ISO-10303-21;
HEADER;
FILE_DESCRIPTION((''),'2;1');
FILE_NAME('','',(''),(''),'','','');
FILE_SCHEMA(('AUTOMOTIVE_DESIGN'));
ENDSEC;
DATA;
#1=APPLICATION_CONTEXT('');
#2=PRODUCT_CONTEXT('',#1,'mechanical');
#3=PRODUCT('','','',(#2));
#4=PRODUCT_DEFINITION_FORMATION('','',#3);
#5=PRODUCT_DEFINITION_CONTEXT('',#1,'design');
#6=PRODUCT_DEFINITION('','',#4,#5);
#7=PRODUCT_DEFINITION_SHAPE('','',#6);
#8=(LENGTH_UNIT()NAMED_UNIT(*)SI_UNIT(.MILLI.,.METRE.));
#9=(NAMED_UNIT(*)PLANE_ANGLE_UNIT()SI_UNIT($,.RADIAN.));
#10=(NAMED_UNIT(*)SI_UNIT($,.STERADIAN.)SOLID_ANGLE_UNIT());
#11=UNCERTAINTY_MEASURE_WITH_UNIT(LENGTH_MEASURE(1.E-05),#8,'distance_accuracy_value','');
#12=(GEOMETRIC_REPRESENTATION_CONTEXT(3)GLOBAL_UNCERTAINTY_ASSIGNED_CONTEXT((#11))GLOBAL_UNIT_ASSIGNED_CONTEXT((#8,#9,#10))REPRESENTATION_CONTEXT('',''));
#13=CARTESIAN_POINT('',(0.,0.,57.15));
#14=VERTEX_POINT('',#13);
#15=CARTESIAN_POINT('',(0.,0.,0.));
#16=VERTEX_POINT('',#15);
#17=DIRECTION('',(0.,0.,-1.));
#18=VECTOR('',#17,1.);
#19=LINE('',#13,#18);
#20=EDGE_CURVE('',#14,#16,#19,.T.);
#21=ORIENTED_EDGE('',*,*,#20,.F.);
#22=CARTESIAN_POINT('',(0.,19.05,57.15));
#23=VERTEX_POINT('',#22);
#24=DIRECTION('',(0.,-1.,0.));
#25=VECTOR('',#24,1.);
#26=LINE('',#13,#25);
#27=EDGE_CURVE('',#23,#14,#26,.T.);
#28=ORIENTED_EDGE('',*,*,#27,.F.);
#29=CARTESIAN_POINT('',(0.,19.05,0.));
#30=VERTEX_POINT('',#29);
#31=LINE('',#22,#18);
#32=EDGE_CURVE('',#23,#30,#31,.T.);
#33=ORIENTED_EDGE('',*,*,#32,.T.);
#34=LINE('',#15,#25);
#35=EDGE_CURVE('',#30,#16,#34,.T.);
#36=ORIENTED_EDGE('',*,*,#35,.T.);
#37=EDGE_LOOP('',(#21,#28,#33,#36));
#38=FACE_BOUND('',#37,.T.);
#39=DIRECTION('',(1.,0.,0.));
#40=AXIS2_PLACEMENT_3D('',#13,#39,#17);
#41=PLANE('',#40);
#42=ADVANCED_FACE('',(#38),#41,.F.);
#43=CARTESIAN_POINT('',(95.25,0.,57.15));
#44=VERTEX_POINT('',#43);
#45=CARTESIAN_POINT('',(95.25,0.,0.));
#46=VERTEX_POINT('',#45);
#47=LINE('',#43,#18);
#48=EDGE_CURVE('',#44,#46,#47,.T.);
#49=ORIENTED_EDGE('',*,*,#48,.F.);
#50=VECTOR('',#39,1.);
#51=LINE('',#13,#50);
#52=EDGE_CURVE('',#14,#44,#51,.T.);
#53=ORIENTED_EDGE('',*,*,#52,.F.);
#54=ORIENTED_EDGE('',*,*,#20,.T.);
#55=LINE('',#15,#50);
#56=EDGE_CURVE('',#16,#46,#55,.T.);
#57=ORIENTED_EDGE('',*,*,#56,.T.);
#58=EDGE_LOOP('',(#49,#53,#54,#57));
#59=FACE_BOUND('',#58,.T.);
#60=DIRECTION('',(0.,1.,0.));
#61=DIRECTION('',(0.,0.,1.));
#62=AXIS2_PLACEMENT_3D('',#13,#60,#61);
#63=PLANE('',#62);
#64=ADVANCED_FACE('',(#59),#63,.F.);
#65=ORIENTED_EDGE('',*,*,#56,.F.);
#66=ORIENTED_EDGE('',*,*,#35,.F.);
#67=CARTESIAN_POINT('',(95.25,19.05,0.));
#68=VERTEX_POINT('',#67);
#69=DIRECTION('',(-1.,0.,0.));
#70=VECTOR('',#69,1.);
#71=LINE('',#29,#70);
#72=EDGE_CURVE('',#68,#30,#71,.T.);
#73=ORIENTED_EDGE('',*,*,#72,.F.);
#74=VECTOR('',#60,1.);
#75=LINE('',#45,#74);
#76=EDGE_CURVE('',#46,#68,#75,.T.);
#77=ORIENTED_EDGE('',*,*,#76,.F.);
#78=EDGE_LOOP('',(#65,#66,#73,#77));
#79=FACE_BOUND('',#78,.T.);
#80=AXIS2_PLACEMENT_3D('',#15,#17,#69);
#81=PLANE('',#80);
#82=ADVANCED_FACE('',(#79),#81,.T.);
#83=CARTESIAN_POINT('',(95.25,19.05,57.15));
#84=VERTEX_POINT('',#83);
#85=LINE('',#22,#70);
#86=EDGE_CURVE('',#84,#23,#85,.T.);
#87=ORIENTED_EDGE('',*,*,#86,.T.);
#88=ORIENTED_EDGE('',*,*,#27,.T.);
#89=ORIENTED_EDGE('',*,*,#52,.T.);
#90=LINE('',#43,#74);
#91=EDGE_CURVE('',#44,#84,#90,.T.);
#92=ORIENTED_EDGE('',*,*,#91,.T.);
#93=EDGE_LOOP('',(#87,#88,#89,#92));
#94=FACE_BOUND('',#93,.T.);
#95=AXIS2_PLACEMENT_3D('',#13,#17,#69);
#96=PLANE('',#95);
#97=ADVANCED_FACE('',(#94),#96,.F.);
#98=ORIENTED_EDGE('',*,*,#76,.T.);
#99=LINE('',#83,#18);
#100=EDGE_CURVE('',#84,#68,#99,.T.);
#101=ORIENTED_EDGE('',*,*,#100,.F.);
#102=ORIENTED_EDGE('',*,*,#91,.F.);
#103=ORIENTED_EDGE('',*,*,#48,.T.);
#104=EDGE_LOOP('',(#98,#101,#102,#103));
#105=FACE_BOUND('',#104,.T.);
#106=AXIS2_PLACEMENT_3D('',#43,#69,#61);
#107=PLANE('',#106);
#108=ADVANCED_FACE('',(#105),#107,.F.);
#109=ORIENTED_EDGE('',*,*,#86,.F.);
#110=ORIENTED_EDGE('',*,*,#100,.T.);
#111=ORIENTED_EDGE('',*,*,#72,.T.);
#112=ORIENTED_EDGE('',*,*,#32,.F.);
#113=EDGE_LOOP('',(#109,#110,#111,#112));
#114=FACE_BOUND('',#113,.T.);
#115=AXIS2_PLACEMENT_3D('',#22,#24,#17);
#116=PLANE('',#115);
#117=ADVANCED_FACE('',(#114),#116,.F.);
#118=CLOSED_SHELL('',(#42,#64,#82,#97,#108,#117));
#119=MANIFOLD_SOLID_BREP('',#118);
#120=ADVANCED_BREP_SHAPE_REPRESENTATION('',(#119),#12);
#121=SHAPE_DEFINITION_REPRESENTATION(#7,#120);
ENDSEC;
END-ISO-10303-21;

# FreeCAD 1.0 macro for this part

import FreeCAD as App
import Part
import Sketcher
Q = App.Units.Quantity

doc = App.newDocument("Part")
params = doc.addObject("Spreadsheet::Sheet", "Params")
for row, (alias, value) in enumerate([
    ("sketch1_width", "3.75 in"),
    ("sketch1_height", "0.75 in"),
    ("pad1_length", "2.25 in"),
], start=1):
    params.set(f"A{row}", alias)
    params.set(f"B{row}", "=" + value)
    params.setAlias(f"B{row}", alias)

body = doc.addObject("PartDesign::Body", "Body")

sketch1 = body.newObject("Sketcher::SketchObject", "Sketch")
sketch1.AttachmentSupport = (doc.getObject("XY_Plane"), [""])
sketch1.MapMode = "FlatFace"
sketch1.addGeometry([
    Part.LineSegment(App.Vector(0, 19, 0), App.Vector(0, 0, 0)),
    Part.LineSegment(App.Vector(0, 0, 0), App.Vector(95, 0, 0)),
    Part.LineSegment(App.Vector(95, 0, 0), App.Vector(95, 19, 0)),
    Part.LineSegment(App.Vector(95, 19, 0), App.Vector(0, 19, 0)),
], False)
sketch1.addConstraint([
    Sketcher.Constraint("Coincident", 0, 2, 1, 1),
    Sketcher.Constraint("Coincident", 1, 2, 2, 1),
    Sketcher.Constraint("Coincident", 2, 2, 3, 1),
    Sketcher.Constraint("Coincident", 3, 2, 0, 1),
    Sketcher.Constraint("Vertical", 0),
    Sketcher.Constraint("Horizontal", 1),
    Sketcher.Constraint("Vertical", 2),
    Sketcher.Constraint("Horizontal", 3),
    Sketcher.Constraint("Coincident", 0, 2, -1, 1),
    Sketcher.Constraint("DistanceX", 1, 1, 1, 2, Q("3.75 in")),
    Sketcher.Constraint("DistanceY", 0, 2, 0, 1, Q("0.75 in")),
])
sketch1.setExpression("Constraints[9]", "Params.sketch1_width")
sketch1.setExpression("Constraints[10]", "Params.sketch1_height")
pad1 = body.newObject("PartDesign::Pad", "Pad")
pad1.Profile = sketch1
pad1.setExpression("Length", "Params.pad1_length")

doc.recompute()
